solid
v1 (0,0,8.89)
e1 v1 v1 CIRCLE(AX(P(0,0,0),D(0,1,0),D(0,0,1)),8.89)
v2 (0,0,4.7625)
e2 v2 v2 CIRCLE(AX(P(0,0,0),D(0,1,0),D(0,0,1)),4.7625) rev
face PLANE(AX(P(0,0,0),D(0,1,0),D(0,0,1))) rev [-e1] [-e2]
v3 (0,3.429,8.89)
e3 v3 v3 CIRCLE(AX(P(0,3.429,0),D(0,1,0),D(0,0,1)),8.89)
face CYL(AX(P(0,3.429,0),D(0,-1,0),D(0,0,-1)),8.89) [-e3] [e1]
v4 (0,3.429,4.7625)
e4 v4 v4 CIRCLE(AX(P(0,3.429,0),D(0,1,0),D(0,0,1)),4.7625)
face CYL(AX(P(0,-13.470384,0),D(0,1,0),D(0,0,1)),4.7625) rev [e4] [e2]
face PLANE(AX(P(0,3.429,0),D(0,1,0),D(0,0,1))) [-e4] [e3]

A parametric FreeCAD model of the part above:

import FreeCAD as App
import Part
import Sketcher
from FreeCAD import Vector
Q = App.Units.Quantity

doc = App.newDocument("Part")
body = doc.addObject("PartDesign::Body", "Body")

sketch1 = body.newObject("Sketcher::SketchObject", "Sketch")
sketch1.AttachmentSupport = (doc.getObject("XZ_Plane"), [""])
sketch1.MapMode = "FlatFace"
sketch1.addGeometry(Part.Circle(Vector(0, 0, 0), Vector(0, 0, 1), 8.89), False)
sketch1.addConstraint([
    Sketcher.Constraint("Coincident", 0, 3, -1, 1),
    Sketcher.Constraint("Diameter", 0, Q("0.7 in")),
])
pad1 = body.newObject("PartDesign::Pad", "Pad")
pad1.Profile = sketch1
pad1.Length = Q("0.135 in")
pad1.Reversed = True

sketch2 = body.newObject("Sketcher::SketchObject", "Sketch001")
sketch2.AttachmentSupport = (doc.getObject("XZ_Plane"), [""])
sketch2.MapMode = "FlatFace"
sketch2.AttachmentOffset = App.Placement(Vector(0, 0, -0.135 * 25.4), App.Rotation())
sketch2.addGeometry(Part.Circle(Vector(0, 0, 0), Vector(0, 0, 1), 4.7625), False)
sketch2.addConstraint([
    Sketcher.Constraint("Coincident", 0, 3, -1, 1),
    Sketcher.Constraint("Diameter", 0, Q("0.375 in")),
])
pocket1 = body.newObject("PartDesign::Pocket", "Pocket")
pocket1.Profile = sketch2
pocket1.Length = Q("0.135 in")
pocket1.Reversed = True

doc.recompute()
